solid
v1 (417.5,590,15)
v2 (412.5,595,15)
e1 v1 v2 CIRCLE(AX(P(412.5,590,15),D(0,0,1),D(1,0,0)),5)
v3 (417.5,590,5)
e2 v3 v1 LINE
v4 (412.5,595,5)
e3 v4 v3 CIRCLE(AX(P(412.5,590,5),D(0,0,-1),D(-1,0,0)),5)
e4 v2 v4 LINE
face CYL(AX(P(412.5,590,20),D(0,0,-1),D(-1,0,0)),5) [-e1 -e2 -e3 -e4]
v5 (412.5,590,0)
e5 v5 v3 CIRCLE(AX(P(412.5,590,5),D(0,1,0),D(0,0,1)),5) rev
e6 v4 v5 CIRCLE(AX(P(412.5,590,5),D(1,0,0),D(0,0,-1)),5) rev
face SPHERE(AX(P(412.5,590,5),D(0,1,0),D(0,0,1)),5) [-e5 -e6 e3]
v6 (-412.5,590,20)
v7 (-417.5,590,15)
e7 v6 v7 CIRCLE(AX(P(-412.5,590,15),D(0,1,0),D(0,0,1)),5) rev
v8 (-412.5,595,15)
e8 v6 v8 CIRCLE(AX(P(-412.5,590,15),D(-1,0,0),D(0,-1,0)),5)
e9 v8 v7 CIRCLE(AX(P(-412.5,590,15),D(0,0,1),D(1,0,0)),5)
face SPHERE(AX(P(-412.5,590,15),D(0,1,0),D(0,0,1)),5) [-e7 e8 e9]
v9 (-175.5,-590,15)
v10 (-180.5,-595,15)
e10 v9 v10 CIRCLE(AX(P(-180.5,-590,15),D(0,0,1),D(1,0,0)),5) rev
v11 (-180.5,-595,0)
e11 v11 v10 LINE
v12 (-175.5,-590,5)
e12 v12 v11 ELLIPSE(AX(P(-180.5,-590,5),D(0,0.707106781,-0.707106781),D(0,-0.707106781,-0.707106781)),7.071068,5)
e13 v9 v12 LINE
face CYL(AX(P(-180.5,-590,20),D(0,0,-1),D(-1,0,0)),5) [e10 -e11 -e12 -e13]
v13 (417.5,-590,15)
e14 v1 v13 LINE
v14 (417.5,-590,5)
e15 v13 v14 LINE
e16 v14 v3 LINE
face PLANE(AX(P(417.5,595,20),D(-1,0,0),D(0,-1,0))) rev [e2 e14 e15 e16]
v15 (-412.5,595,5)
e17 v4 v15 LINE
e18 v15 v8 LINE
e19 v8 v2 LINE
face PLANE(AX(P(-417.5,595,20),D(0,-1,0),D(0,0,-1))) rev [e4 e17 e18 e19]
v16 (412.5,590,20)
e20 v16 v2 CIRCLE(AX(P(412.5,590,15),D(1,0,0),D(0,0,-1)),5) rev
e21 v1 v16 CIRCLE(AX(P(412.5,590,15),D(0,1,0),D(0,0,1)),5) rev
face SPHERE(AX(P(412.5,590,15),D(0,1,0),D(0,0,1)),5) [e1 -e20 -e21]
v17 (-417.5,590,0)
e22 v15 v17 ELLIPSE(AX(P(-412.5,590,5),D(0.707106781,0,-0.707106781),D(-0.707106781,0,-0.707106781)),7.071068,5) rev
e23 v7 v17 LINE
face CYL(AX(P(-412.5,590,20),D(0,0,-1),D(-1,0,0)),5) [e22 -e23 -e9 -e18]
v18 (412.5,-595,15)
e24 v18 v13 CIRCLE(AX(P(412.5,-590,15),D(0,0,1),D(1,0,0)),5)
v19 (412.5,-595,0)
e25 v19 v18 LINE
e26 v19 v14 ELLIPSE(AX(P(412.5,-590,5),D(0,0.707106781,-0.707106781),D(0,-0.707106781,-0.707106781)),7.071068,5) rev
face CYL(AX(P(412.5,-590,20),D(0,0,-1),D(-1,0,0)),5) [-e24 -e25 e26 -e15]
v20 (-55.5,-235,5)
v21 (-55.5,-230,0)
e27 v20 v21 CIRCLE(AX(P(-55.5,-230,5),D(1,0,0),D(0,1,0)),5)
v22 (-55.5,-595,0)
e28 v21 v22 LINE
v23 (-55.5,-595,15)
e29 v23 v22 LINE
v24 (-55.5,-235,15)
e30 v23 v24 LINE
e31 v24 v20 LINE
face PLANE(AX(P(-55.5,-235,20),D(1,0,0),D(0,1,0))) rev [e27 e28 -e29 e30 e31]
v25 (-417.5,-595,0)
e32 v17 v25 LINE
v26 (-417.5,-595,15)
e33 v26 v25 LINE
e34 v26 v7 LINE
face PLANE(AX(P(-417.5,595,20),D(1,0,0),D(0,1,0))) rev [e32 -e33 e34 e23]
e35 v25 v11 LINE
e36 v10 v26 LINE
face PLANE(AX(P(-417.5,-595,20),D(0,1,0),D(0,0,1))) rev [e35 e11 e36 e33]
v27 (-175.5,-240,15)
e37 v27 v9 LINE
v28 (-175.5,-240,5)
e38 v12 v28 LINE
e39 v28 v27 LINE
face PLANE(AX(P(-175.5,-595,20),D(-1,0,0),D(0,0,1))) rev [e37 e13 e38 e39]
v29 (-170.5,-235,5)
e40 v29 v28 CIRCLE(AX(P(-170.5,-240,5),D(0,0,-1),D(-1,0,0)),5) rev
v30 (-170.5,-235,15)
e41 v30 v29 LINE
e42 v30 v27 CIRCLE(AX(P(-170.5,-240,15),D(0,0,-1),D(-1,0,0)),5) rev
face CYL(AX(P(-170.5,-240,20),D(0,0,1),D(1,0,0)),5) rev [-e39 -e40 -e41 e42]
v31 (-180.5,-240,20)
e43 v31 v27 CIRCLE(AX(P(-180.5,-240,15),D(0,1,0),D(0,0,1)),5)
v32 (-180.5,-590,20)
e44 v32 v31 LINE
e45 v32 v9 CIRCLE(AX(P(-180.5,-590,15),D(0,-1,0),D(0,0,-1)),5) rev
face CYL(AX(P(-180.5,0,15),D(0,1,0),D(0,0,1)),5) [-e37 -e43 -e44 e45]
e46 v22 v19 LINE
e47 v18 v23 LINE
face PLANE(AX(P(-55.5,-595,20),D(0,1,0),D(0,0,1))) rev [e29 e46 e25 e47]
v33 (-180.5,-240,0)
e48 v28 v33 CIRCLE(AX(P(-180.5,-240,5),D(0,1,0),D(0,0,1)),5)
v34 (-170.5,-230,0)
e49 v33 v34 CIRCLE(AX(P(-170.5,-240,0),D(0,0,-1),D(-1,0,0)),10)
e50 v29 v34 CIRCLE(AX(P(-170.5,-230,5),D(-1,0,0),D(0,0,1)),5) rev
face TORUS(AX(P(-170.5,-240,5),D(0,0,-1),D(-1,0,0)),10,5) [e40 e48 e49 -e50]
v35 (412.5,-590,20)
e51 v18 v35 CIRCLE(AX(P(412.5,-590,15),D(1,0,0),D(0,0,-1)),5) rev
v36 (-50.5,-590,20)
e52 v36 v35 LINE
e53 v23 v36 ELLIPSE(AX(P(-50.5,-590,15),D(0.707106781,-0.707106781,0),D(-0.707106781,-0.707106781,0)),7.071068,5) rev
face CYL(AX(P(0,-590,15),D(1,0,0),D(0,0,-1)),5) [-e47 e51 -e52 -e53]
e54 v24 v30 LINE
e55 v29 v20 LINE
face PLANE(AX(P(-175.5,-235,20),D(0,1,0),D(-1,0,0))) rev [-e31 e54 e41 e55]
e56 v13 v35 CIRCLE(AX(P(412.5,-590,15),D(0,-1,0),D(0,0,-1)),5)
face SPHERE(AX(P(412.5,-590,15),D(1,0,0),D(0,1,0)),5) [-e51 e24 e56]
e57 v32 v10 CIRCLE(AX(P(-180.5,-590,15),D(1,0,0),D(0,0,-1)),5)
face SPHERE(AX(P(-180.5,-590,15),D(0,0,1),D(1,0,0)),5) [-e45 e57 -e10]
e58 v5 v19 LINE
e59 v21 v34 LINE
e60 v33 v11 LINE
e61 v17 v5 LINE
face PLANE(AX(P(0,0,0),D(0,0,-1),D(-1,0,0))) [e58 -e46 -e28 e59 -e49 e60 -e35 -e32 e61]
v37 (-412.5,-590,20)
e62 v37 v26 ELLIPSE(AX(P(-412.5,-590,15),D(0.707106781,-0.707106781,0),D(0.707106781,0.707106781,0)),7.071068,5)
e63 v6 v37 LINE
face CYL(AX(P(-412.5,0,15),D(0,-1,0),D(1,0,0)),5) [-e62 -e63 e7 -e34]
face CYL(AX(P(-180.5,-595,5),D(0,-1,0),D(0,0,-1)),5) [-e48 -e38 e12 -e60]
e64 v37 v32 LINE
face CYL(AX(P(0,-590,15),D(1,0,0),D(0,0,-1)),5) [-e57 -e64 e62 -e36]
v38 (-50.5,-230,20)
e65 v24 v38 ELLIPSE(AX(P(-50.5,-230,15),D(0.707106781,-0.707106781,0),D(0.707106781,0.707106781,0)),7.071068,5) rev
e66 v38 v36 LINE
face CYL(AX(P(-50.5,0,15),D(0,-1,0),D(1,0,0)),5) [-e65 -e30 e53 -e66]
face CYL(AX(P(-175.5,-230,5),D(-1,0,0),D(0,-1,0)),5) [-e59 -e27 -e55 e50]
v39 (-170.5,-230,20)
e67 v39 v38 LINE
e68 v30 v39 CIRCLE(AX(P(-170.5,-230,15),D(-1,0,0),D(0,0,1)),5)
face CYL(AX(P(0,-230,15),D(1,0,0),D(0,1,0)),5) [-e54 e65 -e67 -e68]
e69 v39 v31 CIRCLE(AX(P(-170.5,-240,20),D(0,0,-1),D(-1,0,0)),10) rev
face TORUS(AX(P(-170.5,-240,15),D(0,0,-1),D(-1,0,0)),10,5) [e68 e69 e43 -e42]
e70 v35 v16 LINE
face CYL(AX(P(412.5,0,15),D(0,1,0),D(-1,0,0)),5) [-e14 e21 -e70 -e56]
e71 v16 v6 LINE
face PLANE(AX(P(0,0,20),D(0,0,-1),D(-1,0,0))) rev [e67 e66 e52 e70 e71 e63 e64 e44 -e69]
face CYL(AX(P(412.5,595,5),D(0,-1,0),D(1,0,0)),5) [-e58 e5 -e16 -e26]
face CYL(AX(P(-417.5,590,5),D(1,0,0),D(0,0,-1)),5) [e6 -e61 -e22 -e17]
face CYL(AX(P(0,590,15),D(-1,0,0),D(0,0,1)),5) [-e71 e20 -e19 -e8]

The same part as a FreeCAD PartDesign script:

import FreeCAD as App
import Part
import Sketcher
from FreeCAD import Vector


def edges_at(feature, points):
    """Names of the edges that pass closest to the given points."""
    edges = feature.Shape.Edges
    near = lambda p: min(range(len(edges)), key=lambda i: edges[i].distToShape(Part.Vertex(*p))[0])
    return sorted({f"Edge{near(p) + 1}" for p in points})


def add_polygon(sketch, points):
    """Adds a closed chain of lines whose ends are joined by coincident constraints."""
    first, n = sketch.GeometryCount, len(points)
    for a, b in zip(points, points[1:] + points[:1]):
        sketch.addGeometry(Part.LineSegment(App.Vector(*a, 0), App.Vector(*b, 0)), False)
    for i in range(n):
        sketch.addConstraint(Sketcher.Constraint("Coincident", first + i, 2, first + (i + 1) % n, 1))

doc = App.newDocument("Part")
params = doc.addObject("Spreadsheet::Sheet", "Params")
for row, (alias, value) in enumerate([
    ("sketch1_width", "120 mm"),
    ("sketch1_width2", "473 mm"),
    ("sketch1_width3", "835 mm"),
    ("sketch1_height", "360 mm"),
    ("sketch1_height2", "1190 mm"),
    ("pad1_length", "20 mm"),
    ("fillet_radius", "5 mm"),
], start=1):
    params.set(f"A{row}", alias)
    params.set(f"B{row}", "=" + value)
    params.setAlias(f"B{row}", alias)

body = doc.addObject("PartDesign::Body", "Body")

sketch1 = body.newObject("Sketcher::SketchObject", "Sketch")
sketch1.AttachmentSupport = (doc.getObject("XY_Plane"), [""])
sketch1.MapMode = "FlatFace"
add_polygon(sketch1, [(-175.5, -595), (-175.5, -235), (-55.5, -235), (-55.5, -595), (417.5, -595), (417.5, 595), (-417.5, 595), (-417.5, -595)])
sketch1.addConstraint(Sketcher.Constraint("Vertical", 0))
sketch1.addConstraint(Sketcher.Constraint("Horizontal", 1))
sketch1.addConstraint(Sketcher.Constraint("Vertical", 2))
sketch1.addConstraint(Sketcher.Constraint("Horizontal", 3))
sketch1.addConstraint(Sketcher.Constraint("Vertical", 4))
sketch1.addConstraint(Sketcher.Constraint("Horizontal", 5))
sketch1.addConstraint(Sketcher.Constraint("Vertical", 6))
sketch1.addConstraint(Sketcher.Constraint("Horizontal", 7))
sketch1.addConstraint(Sketcher.Constraint("Symmetric", 3, 2, 5, 2, -1, 1))
sketch1.addConstraint(Sketcher.Constraint("Horizontal", 3, 2, 6, 2))
sketch1.addConstraint(Sketcher.Constraint("DistanceX", 1, 1, 1, 2, 120.0))
sketch1.addConstraint(Sketcher.Constraint("DistanceX", 3, 1, 3, 2, 473.0))
sketch1.addConstraint(Sketcher.Constraint("DistanceX", 5, 2, 5, 1, 835.0))
sketch1.addConstraint(Sketcher.Constraint("DistanceY", 0, 1, 0, 2, 360.0))
sketch1.addConstraint(Sketcher.Constraint("DistanceY", 4, 1, 4, 2, 1190.0))
sketch1.setExpression("Constraints[18]", "Params.sketch1_width")
sketch1.setExpression("Constraints[19]", "Params.sketch1_width2")
sketch1.setExpression("Constraints[20]", "Params.sketch1_width3")
sketch1.setExpression("Constraints[21]", "Params.sketch1_height")
sketch1.setExpression("Constraints[22]", "Params.sketch1_height2")
pad1 = body.newObject("PartDesign::Pad", "Pad")
pad1.Profile = sketch1
pad1.setExpression("Length", "Params.pad1_length")
doc.recompute()

fillet = body.newObject("PartDesign::Fillet", "Fillet")
fillet.Base = (pad1, edges_at(pad1, [
    (0, 595, 0),
    (417.5, 0, 0),
    (0, 595, 20),
    (-175.5, -235, 10),
    (-175.5, -595, 10),
    (-417.5, 595, 10),
    (417.5, 595, 10),
    (417.5, -595, 10),
    (-417.5, 0, 20),
    (-296.5, -595, 20),
    (-175.5, -415, 20),
    (-115.5, -235, 20),
    (-55.5, -415, 20),
    (181, -595, 20),
    (417.5, 0, 20),
    (-115.5, -235, 0),
    (-175.5, -415, 0),
]))
fillet.setExpression("Radius", "Params.fillet_radius")

doc.recompute()
